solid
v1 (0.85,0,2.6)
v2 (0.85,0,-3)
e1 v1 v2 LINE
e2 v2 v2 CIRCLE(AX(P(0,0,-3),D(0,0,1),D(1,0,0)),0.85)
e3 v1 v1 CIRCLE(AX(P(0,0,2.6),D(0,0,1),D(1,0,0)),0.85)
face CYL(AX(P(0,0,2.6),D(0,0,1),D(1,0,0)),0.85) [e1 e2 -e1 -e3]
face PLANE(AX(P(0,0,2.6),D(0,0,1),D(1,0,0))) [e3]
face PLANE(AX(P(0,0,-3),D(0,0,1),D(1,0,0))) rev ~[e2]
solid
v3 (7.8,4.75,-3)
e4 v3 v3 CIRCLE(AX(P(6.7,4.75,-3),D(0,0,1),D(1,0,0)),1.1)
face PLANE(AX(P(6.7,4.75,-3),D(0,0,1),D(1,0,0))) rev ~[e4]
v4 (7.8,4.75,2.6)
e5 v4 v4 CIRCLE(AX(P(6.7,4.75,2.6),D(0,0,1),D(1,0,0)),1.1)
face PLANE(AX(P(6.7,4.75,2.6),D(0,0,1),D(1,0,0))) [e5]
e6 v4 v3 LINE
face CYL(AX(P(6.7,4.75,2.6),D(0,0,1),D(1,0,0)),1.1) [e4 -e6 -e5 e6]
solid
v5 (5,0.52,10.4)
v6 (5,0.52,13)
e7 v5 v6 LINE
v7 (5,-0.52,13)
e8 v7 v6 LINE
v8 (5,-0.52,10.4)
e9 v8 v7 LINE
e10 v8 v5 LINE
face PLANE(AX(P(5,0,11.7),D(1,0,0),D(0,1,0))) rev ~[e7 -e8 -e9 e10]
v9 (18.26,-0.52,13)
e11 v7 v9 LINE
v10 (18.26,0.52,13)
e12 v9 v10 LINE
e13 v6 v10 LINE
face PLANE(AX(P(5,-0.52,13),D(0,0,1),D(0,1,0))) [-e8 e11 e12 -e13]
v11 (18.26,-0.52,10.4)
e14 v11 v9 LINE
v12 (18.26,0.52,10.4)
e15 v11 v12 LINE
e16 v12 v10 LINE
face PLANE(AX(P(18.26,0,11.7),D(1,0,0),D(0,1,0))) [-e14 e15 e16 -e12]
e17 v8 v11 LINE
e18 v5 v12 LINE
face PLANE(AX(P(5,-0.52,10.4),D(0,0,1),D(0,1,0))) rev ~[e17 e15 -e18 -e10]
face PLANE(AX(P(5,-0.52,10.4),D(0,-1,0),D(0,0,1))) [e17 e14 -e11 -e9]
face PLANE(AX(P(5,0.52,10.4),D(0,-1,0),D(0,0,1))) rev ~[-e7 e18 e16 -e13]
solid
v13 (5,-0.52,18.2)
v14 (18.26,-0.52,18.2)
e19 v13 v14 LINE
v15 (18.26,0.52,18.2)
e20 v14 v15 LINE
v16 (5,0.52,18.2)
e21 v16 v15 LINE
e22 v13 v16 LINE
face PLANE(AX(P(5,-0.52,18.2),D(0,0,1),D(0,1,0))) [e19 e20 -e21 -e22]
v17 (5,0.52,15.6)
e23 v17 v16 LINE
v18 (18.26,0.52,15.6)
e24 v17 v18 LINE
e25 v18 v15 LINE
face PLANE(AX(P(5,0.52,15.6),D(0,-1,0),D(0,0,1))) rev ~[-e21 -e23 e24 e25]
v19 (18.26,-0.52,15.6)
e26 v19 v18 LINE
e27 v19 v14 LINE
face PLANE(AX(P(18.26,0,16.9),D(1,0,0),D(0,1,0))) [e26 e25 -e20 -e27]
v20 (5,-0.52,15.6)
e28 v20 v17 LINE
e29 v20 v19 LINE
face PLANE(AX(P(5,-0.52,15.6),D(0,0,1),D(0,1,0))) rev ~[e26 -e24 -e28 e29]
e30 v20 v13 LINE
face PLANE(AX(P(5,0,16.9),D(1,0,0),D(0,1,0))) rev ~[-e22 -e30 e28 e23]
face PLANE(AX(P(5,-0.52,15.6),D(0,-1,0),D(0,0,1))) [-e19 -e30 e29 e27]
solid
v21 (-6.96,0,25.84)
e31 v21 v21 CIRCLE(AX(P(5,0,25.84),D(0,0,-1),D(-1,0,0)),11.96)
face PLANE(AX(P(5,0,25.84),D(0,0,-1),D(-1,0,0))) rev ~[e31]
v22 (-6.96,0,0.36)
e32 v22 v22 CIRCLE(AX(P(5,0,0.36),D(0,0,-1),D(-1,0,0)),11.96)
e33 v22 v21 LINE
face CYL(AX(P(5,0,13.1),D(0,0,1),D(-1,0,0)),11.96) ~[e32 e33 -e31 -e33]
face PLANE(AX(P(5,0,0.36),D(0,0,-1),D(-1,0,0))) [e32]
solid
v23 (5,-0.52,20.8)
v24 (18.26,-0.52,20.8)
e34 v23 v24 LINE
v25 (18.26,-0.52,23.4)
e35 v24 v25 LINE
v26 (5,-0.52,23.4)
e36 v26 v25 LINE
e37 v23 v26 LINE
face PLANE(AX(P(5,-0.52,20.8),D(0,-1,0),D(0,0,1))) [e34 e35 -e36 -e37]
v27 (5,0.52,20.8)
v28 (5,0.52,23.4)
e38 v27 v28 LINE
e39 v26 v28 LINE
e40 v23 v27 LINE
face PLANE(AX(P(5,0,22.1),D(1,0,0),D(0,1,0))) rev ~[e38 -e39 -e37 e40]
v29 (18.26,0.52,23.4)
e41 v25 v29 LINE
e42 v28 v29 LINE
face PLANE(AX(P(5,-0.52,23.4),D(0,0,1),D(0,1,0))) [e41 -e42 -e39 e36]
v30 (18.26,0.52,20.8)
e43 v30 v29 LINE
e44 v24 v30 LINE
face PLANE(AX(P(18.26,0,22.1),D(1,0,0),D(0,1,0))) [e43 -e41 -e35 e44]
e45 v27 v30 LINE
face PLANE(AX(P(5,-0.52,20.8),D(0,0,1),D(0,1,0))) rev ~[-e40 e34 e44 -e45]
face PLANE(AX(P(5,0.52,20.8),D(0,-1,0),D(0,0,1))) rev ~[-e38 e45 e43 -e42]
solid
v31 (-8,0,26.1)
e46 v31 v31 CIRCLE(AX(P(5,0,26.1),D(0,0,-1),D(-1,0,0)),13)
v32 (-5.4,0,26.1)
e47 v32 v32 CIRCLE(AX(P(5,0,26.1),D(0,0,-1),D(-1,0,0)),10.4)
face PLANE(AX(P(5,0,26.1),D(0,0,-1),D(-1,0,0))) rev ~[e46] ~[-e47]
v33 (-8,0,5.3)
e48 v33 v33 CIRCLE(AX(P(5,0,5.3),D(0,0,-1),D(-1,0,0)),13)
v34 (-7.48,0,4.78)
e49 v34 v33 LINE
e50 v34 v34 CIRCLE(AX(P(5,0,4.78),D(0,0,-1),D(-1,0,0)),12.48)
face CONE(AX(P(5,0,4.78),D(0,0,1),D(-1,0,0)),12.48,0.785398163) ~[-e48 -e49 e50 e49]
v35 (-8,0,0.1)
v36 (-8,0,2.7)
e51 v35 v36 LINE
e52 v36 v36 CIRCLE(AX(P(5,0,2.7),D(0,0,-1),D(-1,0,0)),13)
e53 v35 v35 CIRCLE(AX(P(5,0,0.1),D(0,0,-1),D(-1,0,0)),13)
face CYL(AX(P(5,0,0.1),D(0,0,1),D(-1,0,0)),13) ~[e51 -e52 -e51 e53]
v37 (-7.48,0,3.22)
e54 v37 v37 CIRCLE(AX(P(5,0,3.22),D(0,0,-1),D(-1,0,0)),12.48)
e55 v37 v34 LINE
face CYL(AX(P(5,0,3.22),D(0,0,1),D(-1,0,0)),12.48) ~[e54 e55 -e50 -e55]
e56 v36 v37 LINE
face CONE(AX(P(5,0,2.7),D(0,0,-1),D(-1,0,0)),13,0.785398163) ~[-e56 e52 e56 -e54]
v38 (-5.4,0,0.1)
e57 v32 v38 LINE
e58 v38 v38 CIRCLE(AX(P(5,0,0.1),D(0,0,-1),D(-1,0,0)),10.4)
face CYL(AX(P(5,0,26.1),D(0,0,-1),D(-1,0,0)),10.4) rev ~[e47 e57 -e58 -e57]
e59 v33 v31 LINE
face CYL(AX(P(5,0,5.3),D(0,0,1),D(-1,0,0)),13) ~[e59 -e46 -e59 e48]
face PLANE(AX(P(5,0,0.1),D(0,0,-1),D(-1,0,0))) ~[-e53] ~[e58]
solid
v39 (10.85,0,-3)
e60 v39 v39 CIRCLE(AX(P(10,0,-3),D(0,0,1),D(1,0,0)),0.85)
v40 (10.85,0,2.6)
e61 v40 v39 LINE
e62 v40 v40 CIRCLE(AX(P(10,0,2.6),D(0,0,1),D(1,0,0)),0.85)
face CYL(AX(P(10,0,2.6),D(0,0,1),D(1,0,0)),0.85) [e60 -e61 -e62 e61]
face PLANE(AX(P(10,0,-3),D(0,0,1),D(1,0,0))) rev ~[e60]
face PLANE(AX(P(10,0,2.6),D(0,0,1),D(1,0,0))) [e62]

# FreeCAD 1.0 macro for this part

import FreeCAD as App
import Part
import Sketcher
from FreeCAD import Vector


def add_polygon(sketch, points):
    """Adds a closed chain of lines whose ends are joined by coincident constraints."""
    first, n = sketch.GeometryCount, len(points)
    for a, b in zip(points, points[1:] + points[:1]):
        sketch.addGeometry(Part.LineSegment(App.Vector(*a, 0), App.Vector(*b, 0)), False)
    for i in range(n):
        sketch.addConstraint(Sketcher.Constraint("Coincident", first + i, 2, first + (i + 1) % n, 1))

doc = App.newDocument("Part")
params = doc.addObject("Spreadsheet::Sheet", "Params")
for row, (alias, value) in enumerate([
    ("sketch1_height", "26 mm"),
    ("sketch1_width", "2.6 mm"),
    ("sketch1_height2", "20.8 mm"),
    ("sketch1_height3", "1.56 mm"),
    ("revolution_angle", "360 deg"),
    ("sketch2_width", "11.96 mm"),
    ("sketch2_height", "25.48 mm"),
    ("revolution2_angle", "360 deg"),
    ("sketch3_diameter", "1.7 mm"),
    ("sketch3_diameter2", "2.2 mm"),
    ("pad1_length", "5.6 mm"),
    ("sketch4_height", "2.6 mm"),
    ("sketch4_width", "1.04 mm"),
    ("pad2_length", "13.26 mm"),
], start=1):
    params.set(f"A{row}", alias)
    params.set(f"B{row}", "=" + value)
    params.setAlias(f"B{row}", alias)

body = doc.addObject("PartDesign::Body", "Body")

sketch1 = doc.addObject("Sketcher::SketchObject", "Sketch")
body.addObject(sketch1)
sketch1.AttachmentSupport = (doc.XZ_Plane, [""])
sketch1.MapMode = "FlatFace"
add_polygon(sketch1, [(-8, 2.7), (-8, 0.1), (-5.4, 0.1), (-5.4, 26.1), (-8, 26.1), (-8, 5.3), (-7.5, 4.8), (-7.5, 3.2)])
sketch1.addGeometry(Part.LineSegment(Vector(5, 26.1, 0), Vector(5, 0.1, 0)), True)
sketch1.addConstraint(Sketcher.Constraint("Vertical", 0))
sketch1.addConstraint(Sketcher.Constraint("Horizontal", 1))
sketch1.addConstraint(Sketcher.Constraint("Vertical", 2))
sketch1.addConstraint(Sketcher.Constraint("Horizontal", 3))
sketch1.addConstraint(Sketcher.Constraint("Vertical", 4))
sketch1.addConstraint(Sketcher.Constraint("Vertical", 6))
sketch1.addConstraint(Sketcher.Constraint("Vertical", 8))
sketch1.addConstraint(Sketcher.Constraint("Perpendicular", 5, 7))
sketch1.addConstraint(Sketcher.Constraint("Horizontal", 3, 2, 8, 1))
sketch1.addConstraint(Sketcher.Constraint("Horizontal", 1, 2, 8, 2))
sketch1.addConstraint(Sketcher.Constraint("Vertical", 0, 2, 3, 2))
sketch1.addConstraint(Sketcher.Constraint("Equal", 3, 0))
sketch1.addConstraint(Sketcher.Constraint("Equal", 5, 7))
sketch1.addConstraint(Sketcher.Constraint("DistanceY", 2, 1, 2, 2, 26.0))
sketch1.addConstraint(Sketcher.Constraint("DistanceX", 1, 1, 1, 2, 2.6))
sketch1.addConstraint(Sketcher.Constraint("DistanceY", 4, 2, 4, 1, 20.8))
sketch1.addConstraint(Sketcher.Constraint("DistanceX", 0, 2, -1, 1, 8.0))
sketch1.addConstraint(Sketcher.Constraint("DistanceX", -1, 1, 8, 1, 5.0))
sketch1.addConstraint(Sketcher.Constraint("DistanceY", 6, 2, 6, 1, 1.56))
sketch1.addConstraint(Sketcher.Constraint("DistanceY", -1, 1, 0, 2, 0.1))
sketch1.setExpression("Constraints[21]", "Params.sketch1_height")
sketch1.setExpression("Constraints[22]", "Params.sketch1_width")
sketch1.setExpression("Constraints[23]", "Params.sketch1_height2")
sketch1.setExpression("Constraints[26]", "Params.sketch1_height3")
revolution = doc.addObject("PartDesign::Revolution", "Revolution")
body.addObject(revolution)
revolution.Profile = sketch1
revolution.ReferenceAxis = (sketch1, ["Axis0"])
revolution.setExpression("Angle", "Params.revolution_angle")
body2 = doc.addObject("PartDesign::Body", "Body001")

sketch2 = doc.addObject("Sketcher::SketchObject", "Sketch001")
body2.addObject(sketch2)
sketch2.AttachmentSupport = (doc.getObject("XZ_Plane001"), [""])
sketch2.MapMode = "FlatFace"
add_polygon(sketch2, [(-7, 26), (-7, 0), (5, 0), (5, 26)])
sketch2.addGeometry(Part.LineSegment(Vector(5, 26, 0), Vector(5, 0, 0)), True)
sketch2.addConstraint(Sketcher.Constraint("Vertical", 0))
sketch2.addConstraint(Sketcher.Constraint("Horizontal", 1))
sketch2.addConstraint(Sketcher.Constraint("Vertical", 2))
sketch2.addConstraint(Sketcher.Constraint("Horizontal", 3))
sketch2.addConstraint(Sketcher.Constraint("Vertical", 4))
sketch2.addConstraint(Sketcher.Constraint("Coincident", 4, 1, 2, 2))
sketch2.addConstraint(Sketcher.Constraint("Horizontal", 0, 2, 4, 2))
sketch2.addConstraint(Sketcher.Constraint("DistanceX", -1, 1, 1, 2, 5.0))
sketch2.addConstraint(Sketcher.Constraint("DistanceX", 1, 1, 1, 2, 11.96))
sketch2.addConstraint(Sketcher.Constraint("DistanceY", 0, 2, 0, 1, 25.48))
sketch2.addConstraint(Sketcher.Constraint("DistanceY", -1, 1, 0, 2, 0.36))
sketch2.setExpression("Constraints[12]", "Params.sketch2_width")
sketch2.setExpression("Constraints[13]", "Params.sketch2_height")
revolution2 = doc.addObject("PartDesign::Revolution", "Revolution001")
body2.addObject(revolution2)
revolution2.Profile = sketch2
revolution2.ReferenceAxis = (sketch2, ["Axis0"])
revolution2.setExpression("Angle", "Params.revolution2_angle")
body3 = doc.addObject("PartDesign::Body", "Body002")
body3.AllowCompound = True

sketch3 = doc.addObject("Sketcher::SketchObject", "Sketch002")
body3.addObject(sketch3)
sketch3.AttachmentSupport = (doc.getObject("XY_Plane002"), [""])
sketch3.MapMode = "FlatFace"
sketch3.AttachmentOffset = App.Placement(Vector(0, 0, 2.6), App.Rotation())
sketch3.addGeometry(Part.Circle(Vector(0, 0, 0), Vector(0, 0, 1), 0.8), False)
sketch3.addGeometry(Part.Circle(Vector(10, 0, 0), Vector(0, 0, 1), 0.8), False)
sketch3.addGeometry(Part.Circle(Vector(6.7, 4.8, 0), Vector(0, 0, 1), 1.1), False)
sketch3.addConstraint(Sketcher.Constraint("Coincident", 0, 3, -1, 1))
sketch3.addConstraint(Sketcher.Constraint("Equal", 0, 1))
sketch3.addConstraint(Sketcher.Constraint("PointOnObject", 1, 3, -1))
sketch3.addConstraint(Sketcher.Constraint("Diameter", 0, 1.7))
sketch3.addConstraint(Sketcher.Constraint("Diameter", 2, 2.2))
sketch3.addConstraint(Sketcher.Constraint("DistanceX", -1, 1, 1, 3, 10.0))
sketch3.addConstraint(Sketcher.Constraint("DistanceX", -1, 1, 2, 3, 6.7))
sketch3.addConstraint(Sketcher.Constraint("DistanceY", -1, 1, 2, 3, 4.75))
sketch3.setExpression("Constraints[3]", "Params.sketch3_diameter")
sketch3.setExpression("Constraints[4]", "Params.sketch3_diameter2")
pad1 = doc.addObject("PartDesign::Pad", "Pad")
body3.addObject(pad1)
pad1.Profile = sketch3
pad1.setExpression("Length", "Params.pad1_length")
pad1.Reversed = True
body4 = doc.addObject("PartDesign::Body", "Body003")
body4.AllowCompound = True

sketch4 = doc.addObject("Sketcher::SketchObject", "Sketch003")
body4.addObject(sketch4)
sketch4.AttachmentSupport = (doc.getObject("YZ_Plane003"), [""])
sketch4.MapMode = "FlatFace"
sketch4.AttachmentOffset = App.Placement(Vector(0, 0, 5), App.Rotation())
add_polygon(sketch4, [(-0.5, 13), (-0.5, 10.4), (0.5, 10.4), (0.5, 13)])
add_polygon(sketch4, [(-0.5, 18.2), (-0.5, 15.6), (0.5, 15.6), (0.5, 18.2)])
add_polygon(sketch4, [(-0.5, 23.4), (-0.5, 20.8), (0.5, 20.8), (0.5, 23.4)])
sketch4.addConstraint(Sketcher.Constraint("Vertical", 0))
sketch4.addConstraint(Sketcher.Constraint("Horizontal", 1))
sketch4.addConstraint(Sketcher.Constraint("Vertical", 2))
sketch4.addConstraint(Sketcher.Constraint("Horizontal", 3))
sketch4.addConstraint(Sketcher.Constraint("Vertical", 4))
sketch4.addConstraint(Sketcher.Constraint("Horizontal", 5))
sketch4.addConstraint(Sketcher.Constraint("Vertical", 6))
sketch4.addConstraint(Sketcher.Constraint("Horizontal", 7))
sketch4.addConstraint(Sketcher.Constraint("Vertical", 8))
sketch4.addConstraint(Sketcher.Constraint("Horizontal", 9))
sketch4.addConstraint(Sketcher.Constraint("Vertical", 10))
sketch4.addConstraint(Sketcher.Constraint("Horizontal", 11))
sketch4.addConstraint(Sketcher.Constraint("Vertical", 3, 2, 4, 2))
sketch4.addConstraint(Sketcher.Constraint("Vertical", 2, 2, 5, 2))
sketch4.addConstraint(Sketcher.Constraint("Vertical", 7, 2, 8, 2))
sketch4.addConstraint(Sketcher.Constraint("Vertical", 6, 2, 9, 2))
sketch4.addConstraint(Sketcher.Constraint("Equal", 2, 4))
sketch4.addConstraint(Sketcher.Constraint("Equal", 6, 8))
sketch4.addConstraint(Sketcher.Constraint("DistanceY", 0, 2, 0, 1, 2.6))
sketch4.addConstraint(Sketcher.Constraint("DistanceY", -1, 1, 2, 2, 13.0))
sketch4.addConstraint(Sketcher.Constraint("DistanceX", 1, 1, 1, 2, 1.04))
sketch4.addConstraint(Sketcher.Constraint("DistanceY", -1, 1, 4, 2, 15.6))
sketch4.addConstraint(Sketcher.Constraint("DistanceY", -1, 1, 8, 2, 20.8))
sketch4.addConstraint(Sketcher.Constraint("DistanceX", 0, 2, -1, 1, 0.52))
sketch4.setExpression("Constraints[30]", "Params.sketch4_height")
sketch4.setExpression("Constraints[32]", "Params.sketch4_width")
pad2 = doc.addObject("PartDesign::Pad", "Pad001")
body4.addObject(pad2)
pad2.Profile = sketch4
pad2.setExpression("Length", "Params.pad2_length")

doc.recompute()
